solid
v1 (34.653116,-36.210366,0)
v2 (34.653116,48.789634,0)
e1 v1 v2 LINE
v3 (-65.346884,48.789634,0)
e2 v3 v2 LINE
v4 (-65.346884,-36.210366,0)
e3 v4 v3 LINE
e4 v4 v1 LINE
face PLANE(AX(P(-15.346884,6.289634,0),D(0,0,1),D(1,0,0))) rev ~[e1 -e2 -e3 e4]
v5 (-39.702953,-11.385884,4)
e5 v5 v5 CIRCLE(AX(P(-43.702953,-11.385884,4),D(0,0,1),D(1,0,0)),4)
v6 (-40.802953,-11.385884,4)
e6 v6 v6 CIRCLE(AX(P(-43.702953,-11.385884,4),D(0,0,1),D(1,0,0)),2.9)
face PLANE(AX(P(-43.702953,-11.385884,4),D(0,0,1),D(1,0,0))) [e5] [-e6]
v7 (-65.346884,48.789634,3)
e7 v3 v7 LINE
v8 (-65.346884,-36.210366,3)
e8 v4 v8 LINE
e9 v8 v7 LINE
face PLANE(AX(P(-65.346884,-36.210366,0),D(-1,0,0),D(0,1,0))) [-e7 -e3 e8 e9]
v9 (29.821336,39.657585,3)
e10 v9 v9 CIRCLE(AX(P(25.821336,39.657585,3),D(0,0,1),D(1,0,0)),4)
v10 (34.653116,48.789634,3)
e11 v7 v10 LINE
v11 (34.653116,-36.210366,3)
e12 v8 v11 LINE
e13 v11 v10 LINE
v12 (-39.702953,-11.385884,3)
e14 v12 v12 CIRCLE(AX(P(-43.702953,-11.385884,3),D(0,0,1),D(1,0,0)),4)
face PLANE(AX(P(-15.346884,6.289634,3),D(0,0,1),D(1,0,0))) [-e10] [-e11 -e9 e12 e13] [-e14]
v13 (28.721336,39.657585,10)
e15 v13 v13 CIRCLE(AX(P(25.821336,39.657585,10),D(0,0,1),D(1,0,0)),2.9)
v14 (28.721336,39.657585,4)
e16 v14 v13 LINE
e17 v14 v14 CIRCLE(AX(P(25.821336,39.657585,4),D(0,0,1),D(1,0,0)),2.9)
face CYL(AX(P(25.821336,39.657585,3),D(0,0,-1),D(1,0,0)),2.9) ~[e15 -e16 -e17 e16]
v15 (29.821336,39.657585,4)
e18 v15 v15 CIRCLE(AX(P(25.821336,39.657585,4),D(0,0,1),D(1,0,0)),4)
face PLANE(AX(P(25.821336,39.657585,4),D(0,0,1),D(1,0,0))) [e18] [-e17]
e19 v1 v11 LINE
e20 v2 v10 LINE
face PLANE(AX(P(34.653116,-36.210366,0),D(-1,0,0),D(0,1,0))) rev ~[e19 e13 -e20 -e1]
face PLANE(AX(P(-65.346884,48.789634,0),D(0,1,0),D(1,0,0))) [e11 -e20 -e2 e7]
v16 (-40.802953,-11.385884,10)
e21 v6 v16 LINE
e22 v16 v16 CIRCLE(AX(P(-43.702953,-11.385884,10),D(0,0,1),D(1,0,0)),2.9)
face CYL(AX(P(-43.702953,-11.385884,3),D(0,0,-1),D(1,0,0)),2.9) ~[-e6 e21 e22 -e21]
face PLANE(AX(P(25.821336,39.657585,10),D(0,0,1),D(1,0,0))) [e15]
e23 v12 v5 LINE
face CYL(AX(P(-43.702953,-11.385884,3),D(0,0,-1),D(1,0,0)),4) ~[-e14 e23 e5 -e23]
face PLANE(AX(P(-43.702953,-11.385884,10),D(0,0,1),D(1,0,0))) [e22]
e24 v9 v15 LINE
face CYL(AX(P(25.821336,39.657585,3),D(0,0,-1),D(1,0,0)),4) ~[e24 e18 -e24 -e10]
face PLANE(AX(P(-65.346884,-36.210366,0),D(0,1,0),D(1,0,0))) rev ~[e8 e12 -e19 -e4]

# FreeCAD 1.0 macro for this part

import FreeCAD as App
import Part
import Sketcher
from FreeCAD import Vector


def add_polygon(sketch, points):
    """Adds a closed chain of lines whose ends are joined by coincident constraints."""
    first, n = sketch.GeometryCount, len(points)
    for a, b in zip(points, points[1:] + points[:1]):
        sketch.addGeometry(Part.LineSegment(App.Vector(*a, 0), App.Vector(*b, 0)), False)
    for i in range(n):
        sketch.addConstraint(Sketcher.Constraint("Coincident", first + i, 2, first + (i + 1) % n, 1))

doc = App.newDocument("Part")
body = doc.addObject("PartDesign::Body", "Body")

# Sketch on XY plane
sketch1 = body.newObject("Sketcher::SketchObject", "Sketch")
sketch1.AttachmentSupport = (doc.getObject("XY_Plane"), [""])
sketch1.MapMode = "FlatFace"
add_polygon(sketch1, [(-65, 49), (-65, -36), (35, -36), (35, 49)])  # lines 0-3
sketch1.addConstraint([
    Sketcher.Constraint("Vertical", 0),
    Sketcher.Constraint("Horizontal", 1),
    Sketcher.Constraint("Vertical", 2),
    Sketcher.Constraint("Horizontal", 3),
    Sketcher.Constraint("DistanceX", 1, 1, 1, 2, 100.0),
    Sketcher.Constraint("DistanceY", 0, 2, 0, 1, 85.0),
    Sketcher.Constraint("DistanceX", 0, 2, -1, 1, 65.346884),
    Sketcher.Constraint("DistanceY", 0, 2, -1, 1, 36.210366),
])
pad1 = body.newObject("PartDesign::Pad", "Pad")
pad1.Profile = sketch1
pad1.Length = 3

# Sketch on XY plane
sketch2 = body.newObject("Sketcher::SketchObject", "Sketch001")
sketch2.AttachmentSupport = (doc.getObject("XY_Plane"), [""])
sketch2.MapMode = "FlatFace"
sketch2.AttachmentOffset = App.Placement(Vector(0, 0, 3), App.Rotation())
sketch2.addGeometry([
    Part.Circle(Vector(-43.7, -11.4, 0), Vector(0, 0, 1), 2.9),
    Part.Circle(Vector(25.8, 39.7, 0), Vector(0, 0, 1), 2.9),
], False)
sketch2.addConstraint([
    Sketcher.Constraint("Equal", 0, 1),
    Sketcher.Constraint("Diameter", 0, 5.8),
    Sketcher.Constraint("DistanceX", 0, 3, 1, 3, 69.524289),
    Sketcher.Constraint("DistanceY", 0, 3, 1, 3, 51.043469),
    Sketcher.Constraint("DistanceX", 0, 3, -1, 1, 43.702953),
    Sketcher.Constraint("DistanceY", 0, 3, -1, 1, 11.385884),
])
pad2 = body.newObject("PartDesign::Pad", "Pad001")
pad2.Profile = sketch2
pad2.Length = 7

# Sketch on XY plane
sketch3 = body.newObject("Sketcher::SketchObject", "Sketch002")
sketch3.AttachmentSupport = (doc.getObject("XY_Plane"), [""])
sketch3.MapMode = "FlatFace"
sketch3.AttachmentOffset = App.Placement(Vector(0, 0, 3), App.Rotation())
sketch3.addGeometry([
    Part.Circle(Vector(-43.7, -11.4, 0), Vector(0, 0, 1), 4),
    Part.Circle(Vector(-43.7, -11.4, 0), Vector(0, 0, 1), 2.9),
    Part.Circle(Vector(25.8, 39.7, 0), Vector(0, 0, 1), 4),
    Part.Circle(Vector(25.8, 39.7, 0), Vector(0, 0, 1), 2.9),
], False)
sketch3.addConstraint([
    Sketcher.Constraint("Coincident", 1, 3, 0, 3),
    Sketcher.Constraint("Coincident", 3, 3, 2, 3),
    Sketcher.Constraint("Equal", 0, 2),
    Sketcher.Constraint("Equal", 1, 3),
    Sketcher.Constraint("Diameter", 0, 8.0),
    Sketcher.Constraint("Diameter", 1, 5.8),
    Sketcher.Constraint("DistanceX", 0, 3, 2, 3, 69.524289),
    Sketcher.Constraint("DistanceY", 0, 3, 2, 3, 51.043469),
    Sketcher.Constraint("DistanceX", 0, 3, -1, 1, 43.702953),
    Sketcher.Constraint("DistanceY", 0, 3, -1, 1, 11.385884),
])
pad3 = body.newObject("PartDesign::Pad", "Pad002")
pad3.Profile = sketch3
pad3.Length = 1

doc.recompute()
